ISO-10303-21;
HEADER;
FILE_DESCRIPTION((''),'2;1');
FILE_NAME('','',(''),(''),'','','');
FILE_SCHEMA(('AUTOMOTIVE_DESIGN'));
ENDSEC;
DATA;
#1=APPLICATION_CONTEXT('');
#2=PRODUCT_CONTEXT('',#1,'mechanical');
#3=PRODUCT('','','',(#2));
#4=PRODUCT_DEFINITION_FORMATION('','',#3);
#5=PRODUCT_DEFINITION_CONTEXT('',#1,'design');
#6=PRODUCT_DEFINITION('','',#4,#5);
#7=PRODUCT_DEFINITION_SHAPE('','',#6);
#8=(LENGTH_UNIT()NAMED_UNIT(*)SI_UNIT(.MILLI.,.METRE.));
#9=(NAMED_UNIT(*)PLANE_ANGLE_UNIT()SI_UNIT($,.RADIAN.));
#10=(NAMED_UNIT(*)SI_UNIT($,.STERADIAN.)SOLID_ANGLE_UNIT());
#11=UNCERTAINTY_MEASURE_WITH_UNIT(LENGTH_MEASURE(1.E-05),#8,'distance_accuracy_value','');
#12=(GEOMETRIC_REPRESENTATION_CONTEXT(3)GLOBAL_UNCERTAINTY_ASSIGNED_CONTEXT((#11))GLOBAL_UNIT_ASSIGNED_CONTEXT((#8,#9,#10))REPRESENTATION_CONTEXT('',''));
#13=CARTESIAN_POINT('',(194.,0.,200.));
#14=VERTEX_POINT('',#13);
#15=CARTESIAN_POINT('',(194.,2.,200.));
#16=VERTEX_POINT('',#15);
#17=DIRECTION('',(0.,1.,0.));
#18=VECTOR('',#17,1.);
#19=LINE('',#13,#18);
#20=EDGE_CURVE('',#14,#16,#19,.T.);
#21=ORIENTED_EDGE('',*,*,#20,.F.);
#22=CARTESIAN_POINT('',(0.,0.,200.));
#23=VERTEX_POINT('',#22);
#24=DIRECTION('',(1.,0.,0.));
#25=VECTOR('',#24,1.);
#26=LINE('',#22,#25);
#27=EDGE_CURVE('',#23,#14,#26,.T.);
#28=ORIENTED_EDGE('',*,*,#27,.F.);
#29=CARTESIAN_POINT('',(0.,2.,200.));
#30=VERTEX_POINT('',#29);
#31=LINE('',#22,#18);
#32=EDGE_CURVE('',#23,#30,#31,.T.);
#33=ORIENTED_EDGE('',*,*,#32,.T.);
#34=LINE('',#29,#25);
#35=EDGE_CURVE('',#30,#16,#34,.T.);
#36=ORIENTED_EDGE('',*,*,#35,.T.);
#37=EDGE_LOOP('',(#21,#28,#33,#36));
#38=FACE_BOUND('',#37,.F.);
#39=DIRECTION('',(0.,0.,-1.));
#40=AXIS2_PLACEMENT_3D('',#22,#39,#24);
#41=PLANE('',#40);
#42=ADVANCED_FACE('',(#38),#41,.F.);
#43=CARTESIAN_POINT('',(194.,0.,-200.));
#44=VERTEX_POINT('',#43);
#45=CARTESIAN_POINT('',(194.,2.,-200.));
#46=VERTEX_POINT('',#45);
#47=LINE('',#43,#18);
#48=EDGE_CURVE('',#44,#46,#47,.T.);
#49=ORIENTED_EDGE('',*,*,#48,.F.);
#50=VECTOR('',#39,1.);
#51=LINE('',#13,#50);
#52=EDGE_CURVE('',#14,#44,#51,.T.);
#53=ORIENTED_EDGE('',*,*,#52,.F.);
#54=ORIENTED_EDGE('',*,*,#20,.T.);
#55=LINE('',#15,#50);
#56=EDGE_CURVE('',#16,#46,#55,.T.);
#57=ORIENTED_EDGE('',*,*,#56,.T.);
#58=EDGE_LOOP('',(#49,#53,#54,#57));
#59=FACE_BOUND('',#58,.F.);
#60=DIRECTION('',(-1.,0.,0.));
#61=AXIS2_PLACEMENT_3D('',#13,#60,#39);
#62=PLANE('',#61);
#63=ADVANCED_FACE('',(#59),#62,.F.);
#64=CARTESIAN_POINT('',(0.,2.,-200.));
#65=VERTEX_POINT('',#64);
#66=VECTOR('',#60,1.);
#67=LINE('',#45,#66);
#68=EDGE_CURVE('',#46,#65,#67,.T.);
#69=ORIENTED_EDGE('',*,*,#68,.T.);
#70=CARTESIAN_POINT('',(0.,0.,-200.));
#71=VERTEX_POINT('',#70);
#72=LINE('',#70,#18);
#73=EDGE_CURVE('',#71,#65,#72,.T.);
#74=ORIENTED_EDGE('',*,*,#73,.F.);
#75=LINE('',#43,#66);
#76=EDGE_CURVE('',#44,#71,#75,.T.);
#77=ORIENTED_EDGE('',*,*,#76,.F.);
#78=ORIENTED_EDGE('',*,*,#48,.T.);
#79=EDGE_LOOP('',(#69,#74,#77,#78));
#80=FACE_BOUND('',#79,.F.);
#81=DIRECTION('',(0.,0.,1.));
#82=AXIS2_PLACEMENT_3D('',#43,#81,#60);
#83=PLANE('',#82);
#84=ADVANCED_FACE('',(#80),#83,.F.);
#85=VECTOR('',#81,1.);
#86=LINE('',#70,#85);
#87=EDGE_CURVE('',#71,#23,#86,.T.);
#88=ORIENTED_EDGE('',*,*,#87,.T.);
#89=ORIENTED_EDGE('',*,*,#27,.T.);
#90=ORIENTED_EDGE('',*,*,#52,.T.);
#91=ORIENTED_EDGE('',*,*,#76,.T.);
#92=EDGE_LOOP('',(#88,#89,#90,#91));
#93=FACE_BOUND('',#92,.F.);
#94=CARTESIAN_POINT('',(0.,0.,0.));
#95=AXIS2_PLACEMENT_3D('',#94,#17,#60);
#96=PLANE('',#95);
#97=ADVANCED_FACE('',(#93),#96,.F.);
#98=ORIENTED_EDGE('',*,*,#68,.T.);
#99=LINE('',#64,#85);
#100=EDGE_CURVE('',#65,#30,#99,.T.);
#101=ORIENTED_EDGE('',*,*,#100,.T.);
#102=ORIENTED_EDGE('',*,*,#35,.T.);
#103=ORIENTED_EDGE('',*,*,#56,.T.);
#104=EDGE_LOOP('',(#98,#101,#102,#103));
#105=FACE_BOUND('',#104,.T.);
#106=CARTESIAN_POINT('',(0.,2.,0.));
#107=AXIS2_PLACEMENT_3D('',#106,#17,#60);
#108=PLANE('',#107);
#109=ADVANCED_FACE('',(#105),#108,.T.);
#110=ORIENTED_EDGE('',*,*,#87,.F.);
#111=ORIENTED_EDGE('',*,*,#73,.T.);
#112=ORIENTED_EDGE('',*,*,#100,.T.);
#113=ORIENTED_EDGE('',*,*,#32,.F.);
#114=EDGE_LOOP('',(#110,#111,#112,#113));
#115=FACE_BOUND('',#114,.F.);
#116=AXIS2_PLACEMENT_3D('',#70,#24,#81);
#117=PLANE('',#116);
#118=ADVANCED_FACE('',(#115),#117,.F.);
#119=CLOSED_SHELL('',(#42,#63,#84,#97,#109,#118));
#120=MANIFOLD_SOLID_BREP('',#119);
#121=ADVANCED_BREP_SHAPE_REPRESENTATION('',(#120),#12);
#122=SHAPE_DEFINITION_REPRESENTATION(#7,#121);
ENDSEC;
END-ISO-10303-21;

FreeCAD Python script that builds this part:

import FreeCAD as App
import Part
import Sketcher

V = App.Vector

doc = App.newDocument("Part")
body = doc.addObject("PartDesign::Body", "Body")

sketch1 = body.newObject("Sketcher::SketchObject", "Sketch")
sketch1.AttachmentSupport = (doc.getObject("XZ_Plane"), [""])
sketch1.MapMode = "FlatFace"
sketch1.addGeometry([
    Part.LineSegment(V(0, -200, 0), V(0, 200, 0)),
    Part.LineSegment(V(0, 200, 0), V(194, 200, 0)),
    Part.LineSegment(V(194, 200, 0), V(194, -200, 0)),
    Part.LineSegment(V(194, -200, 0), V(0, -200, 0)),
], False)
sketch1.addConstraint([
    Sketcher.Constraint("Coincident", 0, 2, 1, 1),
    Sketcher.Constraint("Coincident", 1, 2, 2, 1),
    Sketcher.Constraint("Coincident", 2, 2, 3, 1),
    Sketcher.Constraint("Coincident", 3, 2, 0, 1),
    Sketcher.Constraint("Vertical", 0),
    Sketcher.Constraint("Horizontal", 1),
    Sketcher.Constraint("Vertical", 2),
    Sketcher.Constraint("Horizontal", 3),
    Sketcher.Constraint("Symmetric", 0, 2, 3, 2, -1, 1),
    Sketcher.Constraint("DistanceX", 1, 1, 1, 2, 194.0),
    Sketcher.Constraint("DistanceY", 0, 1, 0, 2, 400.0),
])
pad1 = body.newObject("PartDesign::Pad", "Pad")
pad1.Profile = sketch1
pad1.Length = 2
pad1.Reversed = True

doc.recompute()
